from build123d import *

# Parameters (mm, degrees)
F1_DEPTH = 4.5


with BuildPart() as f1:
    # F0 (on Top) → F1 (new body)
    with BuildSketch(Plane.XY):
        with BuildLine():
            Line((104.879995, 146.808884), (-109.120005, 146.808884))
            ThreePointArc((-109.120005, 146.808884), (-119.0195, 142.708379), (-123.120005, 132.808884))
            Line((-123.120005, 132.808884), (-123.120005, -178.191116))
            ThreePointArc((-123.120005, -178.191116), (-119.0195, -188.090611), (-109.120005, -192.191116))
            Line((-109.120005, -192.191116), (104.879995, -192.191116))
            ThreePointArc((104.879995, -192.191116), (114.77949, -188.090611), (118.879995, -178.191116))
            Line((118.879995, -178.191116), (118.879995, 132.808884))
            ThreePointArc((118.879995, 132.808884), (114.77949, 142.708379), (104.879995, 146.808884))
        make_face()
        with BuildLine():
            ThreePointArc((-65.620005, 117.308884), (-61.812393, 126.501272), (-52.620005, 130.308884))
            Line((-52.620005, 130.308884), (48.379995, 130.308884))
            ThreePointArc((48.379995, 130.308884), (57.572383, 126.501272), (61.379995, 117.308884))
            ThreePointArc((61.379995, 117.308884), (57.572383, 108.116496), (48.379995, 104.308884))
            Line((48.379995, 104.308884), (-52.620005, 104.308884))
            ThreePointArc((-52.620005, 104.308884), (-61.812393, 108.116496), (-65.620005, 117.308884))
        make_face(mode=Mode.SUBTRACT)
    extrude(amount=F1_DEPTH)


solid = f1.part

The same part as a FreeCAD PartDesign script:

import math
import FreeCAD as App
import Part
import Sketcher

V = App.Vector
Q = App.Units.Quantity

doc = App.newDocument("Part")
body = doc.addObject("PartDesign::Body", "Body")

# Sketch on XY plane
sketch1 = body.newObject("Sketcher::SketchObject", "Sketch")
sketch1.AttachmentSupport = (doc.getObject("XY_Plane"), [""])
sketch1.MapMode = "FlatFace"
sketch1.addGeometry([
    Part.LineSegment(V(105, 147, 0), V(-109, 147, 0)),  # 0
    Part.ArcOfCircle(Part.Circle(V(-109, 133, 0), V(0, 0, 1), 14), math.radians(90), math.radians(180)),  # 1
    Part.LineSegment(V(-123, 133, 0), V(-123, -178, 0)),  # 2
    Part.ArcOfCircle(Part.Circle(V(-109, -178, 0), V(0, 0, 1), 14), math.radians(180), math.radians(270)),  # 3
    Part.LineSegment(V(-109, -192, 0), V(105, -192, 0)),  # 4
    Part.ArcOfCircle(Part.Circle(V(105, -178, 0), V(0, 0, 1), 14), math.radians(-90), math.radians(0)),  # 5
    Part.LineSegment(V(119, -178, 0), V(119, 133, 0)),  # 6
    Part.ArcOfCircle(Part.Circle(V(105, 133, 0), V(0, 0, 1), 14), math.radians(0), math.radians(90)),  # 7
    Part.ArcOfCircle(Part.Circle(V(-53, 117, 0), V(0, 0, 1), 13), math.radians(-180), math.radians(-90)),  # 8
    Part.ArcOfCircle(Part.Circle(V(-53, 117, 0), V(0, 0, 1), 13), math.radians(90), math.radians(180)),  # 9
    Part.LineSegment(V(-53, 130, 0), V(48, 130, 0)),  # 10
    Part.ArcOfCircle(Part.Circle(V(48, 117, 0), V(0, 0, 1), 13), math.radians(0), math.radians(90)),  # 11
    Part.ArcOfCircle(Part.Circle(V(48, 117, 0), V(0, 0, 1), 13), math.radians(-90), math.radians(0)),  # 12
    Part.LineSegment(V(48, 104, 0), V(-53, 104, 0)),  # 13
], False)
sketch1.addConstraint([
    Sketcher.Constraint("Tangent", 0, 2, 1, 1),
    Sketcher.Constraint("Tangent", 1, 2, 2, 1),
    Sketcher.Constraint("Tangent", 2, 2, 3, 1),
    Sketcher.Constraint("Tangent", 3, 2, 4, 1),
    Sketcher.Constraint("Tangent", 4, 2, 5, 1),
    Sketcher.Constraint("Tangent", 5, 2, 6, 1),
    Sketcher.Constraint("Tangent", 6, 2, 7, 1),
    Sketcher.Constraint("Tangent", 7, 2, 0, 1),
    Sketcher.Constraint("Tangent", 8, 1, 9, 2),
    Sketcher.Constraint("Tangent", 9, 1, 10, 1),
    Sketcher.Constraint("Tangent", 10, 2, 11, 2),
    Sketcher.Constraint("Tangent", 11, 1, 12, 2),
    Sketcher.Constraint("Tangent", 12, 1, 13, 1),
    Sketcher.Constraint("Tangent", 13, 2, 8, 2),
    Sketcher.Constraint("Horizontal", 0),
    Sketcher.Constraint("Vertical", 2),
    Sketcher.Constraint("Horizontal", 4),
    Sketcher.Constraint("Vertical", 6),
    Sketcher.Constraint("Horizontal", 10),
    Sketcher.Constraint("Horizontal", 13),
    Sketcher.Constraint("Equal", 1, 3),
    Sketcher.Constraint("Equal", 3, 5),
    Sketcher.Constraint("Equal", 5, 7),
    Sketcher.Constraint("Equal", 8, 9),
    Sketcher.Constraint("Equal", 9, 11),
    Sketcher.Constraint("Horizontal", 12, 3, 8, 1),
    Sketcher.Constraint("Horizontal", 8, 1, 11, 1),
    Sketcher.Constraint("Radius", 1, Q("14 mm")),
    Sketcher.Constraint("Radius", 8, Q("13.000001 mm")),
    Sketcher.Constraint("DistanceX", 0, 2, 0, 1, Q("214 mm")),
    Sketcher.Constraint("DistanceX", 10, 1, 10, 2, Q("101 mm")),
    Sketcher.Constraint("DistanceY", 2, 2, 2, 1, Q("311 mm")),
    Sketcher.Constraint("DistanceX", 1, 3, 8, 3, Q("56.500001 mm")),
    Sketcher.Constraint("DistanceY", 8, 3, 1, 3, Q("15.5 mm")),
    Sketcher.Constraint("DistanceX", 1, 3, -1, 1, Q("109.120005 mm")),
    Sketcher.Constraint("DistanceY", -1, 1, 1, 3, Q("132.808884 mm")),
])
pad1 = body.newObject("PartDesign::Pad", "Pad")
pad1.Profile = sketch1
pad1.Length = 4.5

doc.recompute()
